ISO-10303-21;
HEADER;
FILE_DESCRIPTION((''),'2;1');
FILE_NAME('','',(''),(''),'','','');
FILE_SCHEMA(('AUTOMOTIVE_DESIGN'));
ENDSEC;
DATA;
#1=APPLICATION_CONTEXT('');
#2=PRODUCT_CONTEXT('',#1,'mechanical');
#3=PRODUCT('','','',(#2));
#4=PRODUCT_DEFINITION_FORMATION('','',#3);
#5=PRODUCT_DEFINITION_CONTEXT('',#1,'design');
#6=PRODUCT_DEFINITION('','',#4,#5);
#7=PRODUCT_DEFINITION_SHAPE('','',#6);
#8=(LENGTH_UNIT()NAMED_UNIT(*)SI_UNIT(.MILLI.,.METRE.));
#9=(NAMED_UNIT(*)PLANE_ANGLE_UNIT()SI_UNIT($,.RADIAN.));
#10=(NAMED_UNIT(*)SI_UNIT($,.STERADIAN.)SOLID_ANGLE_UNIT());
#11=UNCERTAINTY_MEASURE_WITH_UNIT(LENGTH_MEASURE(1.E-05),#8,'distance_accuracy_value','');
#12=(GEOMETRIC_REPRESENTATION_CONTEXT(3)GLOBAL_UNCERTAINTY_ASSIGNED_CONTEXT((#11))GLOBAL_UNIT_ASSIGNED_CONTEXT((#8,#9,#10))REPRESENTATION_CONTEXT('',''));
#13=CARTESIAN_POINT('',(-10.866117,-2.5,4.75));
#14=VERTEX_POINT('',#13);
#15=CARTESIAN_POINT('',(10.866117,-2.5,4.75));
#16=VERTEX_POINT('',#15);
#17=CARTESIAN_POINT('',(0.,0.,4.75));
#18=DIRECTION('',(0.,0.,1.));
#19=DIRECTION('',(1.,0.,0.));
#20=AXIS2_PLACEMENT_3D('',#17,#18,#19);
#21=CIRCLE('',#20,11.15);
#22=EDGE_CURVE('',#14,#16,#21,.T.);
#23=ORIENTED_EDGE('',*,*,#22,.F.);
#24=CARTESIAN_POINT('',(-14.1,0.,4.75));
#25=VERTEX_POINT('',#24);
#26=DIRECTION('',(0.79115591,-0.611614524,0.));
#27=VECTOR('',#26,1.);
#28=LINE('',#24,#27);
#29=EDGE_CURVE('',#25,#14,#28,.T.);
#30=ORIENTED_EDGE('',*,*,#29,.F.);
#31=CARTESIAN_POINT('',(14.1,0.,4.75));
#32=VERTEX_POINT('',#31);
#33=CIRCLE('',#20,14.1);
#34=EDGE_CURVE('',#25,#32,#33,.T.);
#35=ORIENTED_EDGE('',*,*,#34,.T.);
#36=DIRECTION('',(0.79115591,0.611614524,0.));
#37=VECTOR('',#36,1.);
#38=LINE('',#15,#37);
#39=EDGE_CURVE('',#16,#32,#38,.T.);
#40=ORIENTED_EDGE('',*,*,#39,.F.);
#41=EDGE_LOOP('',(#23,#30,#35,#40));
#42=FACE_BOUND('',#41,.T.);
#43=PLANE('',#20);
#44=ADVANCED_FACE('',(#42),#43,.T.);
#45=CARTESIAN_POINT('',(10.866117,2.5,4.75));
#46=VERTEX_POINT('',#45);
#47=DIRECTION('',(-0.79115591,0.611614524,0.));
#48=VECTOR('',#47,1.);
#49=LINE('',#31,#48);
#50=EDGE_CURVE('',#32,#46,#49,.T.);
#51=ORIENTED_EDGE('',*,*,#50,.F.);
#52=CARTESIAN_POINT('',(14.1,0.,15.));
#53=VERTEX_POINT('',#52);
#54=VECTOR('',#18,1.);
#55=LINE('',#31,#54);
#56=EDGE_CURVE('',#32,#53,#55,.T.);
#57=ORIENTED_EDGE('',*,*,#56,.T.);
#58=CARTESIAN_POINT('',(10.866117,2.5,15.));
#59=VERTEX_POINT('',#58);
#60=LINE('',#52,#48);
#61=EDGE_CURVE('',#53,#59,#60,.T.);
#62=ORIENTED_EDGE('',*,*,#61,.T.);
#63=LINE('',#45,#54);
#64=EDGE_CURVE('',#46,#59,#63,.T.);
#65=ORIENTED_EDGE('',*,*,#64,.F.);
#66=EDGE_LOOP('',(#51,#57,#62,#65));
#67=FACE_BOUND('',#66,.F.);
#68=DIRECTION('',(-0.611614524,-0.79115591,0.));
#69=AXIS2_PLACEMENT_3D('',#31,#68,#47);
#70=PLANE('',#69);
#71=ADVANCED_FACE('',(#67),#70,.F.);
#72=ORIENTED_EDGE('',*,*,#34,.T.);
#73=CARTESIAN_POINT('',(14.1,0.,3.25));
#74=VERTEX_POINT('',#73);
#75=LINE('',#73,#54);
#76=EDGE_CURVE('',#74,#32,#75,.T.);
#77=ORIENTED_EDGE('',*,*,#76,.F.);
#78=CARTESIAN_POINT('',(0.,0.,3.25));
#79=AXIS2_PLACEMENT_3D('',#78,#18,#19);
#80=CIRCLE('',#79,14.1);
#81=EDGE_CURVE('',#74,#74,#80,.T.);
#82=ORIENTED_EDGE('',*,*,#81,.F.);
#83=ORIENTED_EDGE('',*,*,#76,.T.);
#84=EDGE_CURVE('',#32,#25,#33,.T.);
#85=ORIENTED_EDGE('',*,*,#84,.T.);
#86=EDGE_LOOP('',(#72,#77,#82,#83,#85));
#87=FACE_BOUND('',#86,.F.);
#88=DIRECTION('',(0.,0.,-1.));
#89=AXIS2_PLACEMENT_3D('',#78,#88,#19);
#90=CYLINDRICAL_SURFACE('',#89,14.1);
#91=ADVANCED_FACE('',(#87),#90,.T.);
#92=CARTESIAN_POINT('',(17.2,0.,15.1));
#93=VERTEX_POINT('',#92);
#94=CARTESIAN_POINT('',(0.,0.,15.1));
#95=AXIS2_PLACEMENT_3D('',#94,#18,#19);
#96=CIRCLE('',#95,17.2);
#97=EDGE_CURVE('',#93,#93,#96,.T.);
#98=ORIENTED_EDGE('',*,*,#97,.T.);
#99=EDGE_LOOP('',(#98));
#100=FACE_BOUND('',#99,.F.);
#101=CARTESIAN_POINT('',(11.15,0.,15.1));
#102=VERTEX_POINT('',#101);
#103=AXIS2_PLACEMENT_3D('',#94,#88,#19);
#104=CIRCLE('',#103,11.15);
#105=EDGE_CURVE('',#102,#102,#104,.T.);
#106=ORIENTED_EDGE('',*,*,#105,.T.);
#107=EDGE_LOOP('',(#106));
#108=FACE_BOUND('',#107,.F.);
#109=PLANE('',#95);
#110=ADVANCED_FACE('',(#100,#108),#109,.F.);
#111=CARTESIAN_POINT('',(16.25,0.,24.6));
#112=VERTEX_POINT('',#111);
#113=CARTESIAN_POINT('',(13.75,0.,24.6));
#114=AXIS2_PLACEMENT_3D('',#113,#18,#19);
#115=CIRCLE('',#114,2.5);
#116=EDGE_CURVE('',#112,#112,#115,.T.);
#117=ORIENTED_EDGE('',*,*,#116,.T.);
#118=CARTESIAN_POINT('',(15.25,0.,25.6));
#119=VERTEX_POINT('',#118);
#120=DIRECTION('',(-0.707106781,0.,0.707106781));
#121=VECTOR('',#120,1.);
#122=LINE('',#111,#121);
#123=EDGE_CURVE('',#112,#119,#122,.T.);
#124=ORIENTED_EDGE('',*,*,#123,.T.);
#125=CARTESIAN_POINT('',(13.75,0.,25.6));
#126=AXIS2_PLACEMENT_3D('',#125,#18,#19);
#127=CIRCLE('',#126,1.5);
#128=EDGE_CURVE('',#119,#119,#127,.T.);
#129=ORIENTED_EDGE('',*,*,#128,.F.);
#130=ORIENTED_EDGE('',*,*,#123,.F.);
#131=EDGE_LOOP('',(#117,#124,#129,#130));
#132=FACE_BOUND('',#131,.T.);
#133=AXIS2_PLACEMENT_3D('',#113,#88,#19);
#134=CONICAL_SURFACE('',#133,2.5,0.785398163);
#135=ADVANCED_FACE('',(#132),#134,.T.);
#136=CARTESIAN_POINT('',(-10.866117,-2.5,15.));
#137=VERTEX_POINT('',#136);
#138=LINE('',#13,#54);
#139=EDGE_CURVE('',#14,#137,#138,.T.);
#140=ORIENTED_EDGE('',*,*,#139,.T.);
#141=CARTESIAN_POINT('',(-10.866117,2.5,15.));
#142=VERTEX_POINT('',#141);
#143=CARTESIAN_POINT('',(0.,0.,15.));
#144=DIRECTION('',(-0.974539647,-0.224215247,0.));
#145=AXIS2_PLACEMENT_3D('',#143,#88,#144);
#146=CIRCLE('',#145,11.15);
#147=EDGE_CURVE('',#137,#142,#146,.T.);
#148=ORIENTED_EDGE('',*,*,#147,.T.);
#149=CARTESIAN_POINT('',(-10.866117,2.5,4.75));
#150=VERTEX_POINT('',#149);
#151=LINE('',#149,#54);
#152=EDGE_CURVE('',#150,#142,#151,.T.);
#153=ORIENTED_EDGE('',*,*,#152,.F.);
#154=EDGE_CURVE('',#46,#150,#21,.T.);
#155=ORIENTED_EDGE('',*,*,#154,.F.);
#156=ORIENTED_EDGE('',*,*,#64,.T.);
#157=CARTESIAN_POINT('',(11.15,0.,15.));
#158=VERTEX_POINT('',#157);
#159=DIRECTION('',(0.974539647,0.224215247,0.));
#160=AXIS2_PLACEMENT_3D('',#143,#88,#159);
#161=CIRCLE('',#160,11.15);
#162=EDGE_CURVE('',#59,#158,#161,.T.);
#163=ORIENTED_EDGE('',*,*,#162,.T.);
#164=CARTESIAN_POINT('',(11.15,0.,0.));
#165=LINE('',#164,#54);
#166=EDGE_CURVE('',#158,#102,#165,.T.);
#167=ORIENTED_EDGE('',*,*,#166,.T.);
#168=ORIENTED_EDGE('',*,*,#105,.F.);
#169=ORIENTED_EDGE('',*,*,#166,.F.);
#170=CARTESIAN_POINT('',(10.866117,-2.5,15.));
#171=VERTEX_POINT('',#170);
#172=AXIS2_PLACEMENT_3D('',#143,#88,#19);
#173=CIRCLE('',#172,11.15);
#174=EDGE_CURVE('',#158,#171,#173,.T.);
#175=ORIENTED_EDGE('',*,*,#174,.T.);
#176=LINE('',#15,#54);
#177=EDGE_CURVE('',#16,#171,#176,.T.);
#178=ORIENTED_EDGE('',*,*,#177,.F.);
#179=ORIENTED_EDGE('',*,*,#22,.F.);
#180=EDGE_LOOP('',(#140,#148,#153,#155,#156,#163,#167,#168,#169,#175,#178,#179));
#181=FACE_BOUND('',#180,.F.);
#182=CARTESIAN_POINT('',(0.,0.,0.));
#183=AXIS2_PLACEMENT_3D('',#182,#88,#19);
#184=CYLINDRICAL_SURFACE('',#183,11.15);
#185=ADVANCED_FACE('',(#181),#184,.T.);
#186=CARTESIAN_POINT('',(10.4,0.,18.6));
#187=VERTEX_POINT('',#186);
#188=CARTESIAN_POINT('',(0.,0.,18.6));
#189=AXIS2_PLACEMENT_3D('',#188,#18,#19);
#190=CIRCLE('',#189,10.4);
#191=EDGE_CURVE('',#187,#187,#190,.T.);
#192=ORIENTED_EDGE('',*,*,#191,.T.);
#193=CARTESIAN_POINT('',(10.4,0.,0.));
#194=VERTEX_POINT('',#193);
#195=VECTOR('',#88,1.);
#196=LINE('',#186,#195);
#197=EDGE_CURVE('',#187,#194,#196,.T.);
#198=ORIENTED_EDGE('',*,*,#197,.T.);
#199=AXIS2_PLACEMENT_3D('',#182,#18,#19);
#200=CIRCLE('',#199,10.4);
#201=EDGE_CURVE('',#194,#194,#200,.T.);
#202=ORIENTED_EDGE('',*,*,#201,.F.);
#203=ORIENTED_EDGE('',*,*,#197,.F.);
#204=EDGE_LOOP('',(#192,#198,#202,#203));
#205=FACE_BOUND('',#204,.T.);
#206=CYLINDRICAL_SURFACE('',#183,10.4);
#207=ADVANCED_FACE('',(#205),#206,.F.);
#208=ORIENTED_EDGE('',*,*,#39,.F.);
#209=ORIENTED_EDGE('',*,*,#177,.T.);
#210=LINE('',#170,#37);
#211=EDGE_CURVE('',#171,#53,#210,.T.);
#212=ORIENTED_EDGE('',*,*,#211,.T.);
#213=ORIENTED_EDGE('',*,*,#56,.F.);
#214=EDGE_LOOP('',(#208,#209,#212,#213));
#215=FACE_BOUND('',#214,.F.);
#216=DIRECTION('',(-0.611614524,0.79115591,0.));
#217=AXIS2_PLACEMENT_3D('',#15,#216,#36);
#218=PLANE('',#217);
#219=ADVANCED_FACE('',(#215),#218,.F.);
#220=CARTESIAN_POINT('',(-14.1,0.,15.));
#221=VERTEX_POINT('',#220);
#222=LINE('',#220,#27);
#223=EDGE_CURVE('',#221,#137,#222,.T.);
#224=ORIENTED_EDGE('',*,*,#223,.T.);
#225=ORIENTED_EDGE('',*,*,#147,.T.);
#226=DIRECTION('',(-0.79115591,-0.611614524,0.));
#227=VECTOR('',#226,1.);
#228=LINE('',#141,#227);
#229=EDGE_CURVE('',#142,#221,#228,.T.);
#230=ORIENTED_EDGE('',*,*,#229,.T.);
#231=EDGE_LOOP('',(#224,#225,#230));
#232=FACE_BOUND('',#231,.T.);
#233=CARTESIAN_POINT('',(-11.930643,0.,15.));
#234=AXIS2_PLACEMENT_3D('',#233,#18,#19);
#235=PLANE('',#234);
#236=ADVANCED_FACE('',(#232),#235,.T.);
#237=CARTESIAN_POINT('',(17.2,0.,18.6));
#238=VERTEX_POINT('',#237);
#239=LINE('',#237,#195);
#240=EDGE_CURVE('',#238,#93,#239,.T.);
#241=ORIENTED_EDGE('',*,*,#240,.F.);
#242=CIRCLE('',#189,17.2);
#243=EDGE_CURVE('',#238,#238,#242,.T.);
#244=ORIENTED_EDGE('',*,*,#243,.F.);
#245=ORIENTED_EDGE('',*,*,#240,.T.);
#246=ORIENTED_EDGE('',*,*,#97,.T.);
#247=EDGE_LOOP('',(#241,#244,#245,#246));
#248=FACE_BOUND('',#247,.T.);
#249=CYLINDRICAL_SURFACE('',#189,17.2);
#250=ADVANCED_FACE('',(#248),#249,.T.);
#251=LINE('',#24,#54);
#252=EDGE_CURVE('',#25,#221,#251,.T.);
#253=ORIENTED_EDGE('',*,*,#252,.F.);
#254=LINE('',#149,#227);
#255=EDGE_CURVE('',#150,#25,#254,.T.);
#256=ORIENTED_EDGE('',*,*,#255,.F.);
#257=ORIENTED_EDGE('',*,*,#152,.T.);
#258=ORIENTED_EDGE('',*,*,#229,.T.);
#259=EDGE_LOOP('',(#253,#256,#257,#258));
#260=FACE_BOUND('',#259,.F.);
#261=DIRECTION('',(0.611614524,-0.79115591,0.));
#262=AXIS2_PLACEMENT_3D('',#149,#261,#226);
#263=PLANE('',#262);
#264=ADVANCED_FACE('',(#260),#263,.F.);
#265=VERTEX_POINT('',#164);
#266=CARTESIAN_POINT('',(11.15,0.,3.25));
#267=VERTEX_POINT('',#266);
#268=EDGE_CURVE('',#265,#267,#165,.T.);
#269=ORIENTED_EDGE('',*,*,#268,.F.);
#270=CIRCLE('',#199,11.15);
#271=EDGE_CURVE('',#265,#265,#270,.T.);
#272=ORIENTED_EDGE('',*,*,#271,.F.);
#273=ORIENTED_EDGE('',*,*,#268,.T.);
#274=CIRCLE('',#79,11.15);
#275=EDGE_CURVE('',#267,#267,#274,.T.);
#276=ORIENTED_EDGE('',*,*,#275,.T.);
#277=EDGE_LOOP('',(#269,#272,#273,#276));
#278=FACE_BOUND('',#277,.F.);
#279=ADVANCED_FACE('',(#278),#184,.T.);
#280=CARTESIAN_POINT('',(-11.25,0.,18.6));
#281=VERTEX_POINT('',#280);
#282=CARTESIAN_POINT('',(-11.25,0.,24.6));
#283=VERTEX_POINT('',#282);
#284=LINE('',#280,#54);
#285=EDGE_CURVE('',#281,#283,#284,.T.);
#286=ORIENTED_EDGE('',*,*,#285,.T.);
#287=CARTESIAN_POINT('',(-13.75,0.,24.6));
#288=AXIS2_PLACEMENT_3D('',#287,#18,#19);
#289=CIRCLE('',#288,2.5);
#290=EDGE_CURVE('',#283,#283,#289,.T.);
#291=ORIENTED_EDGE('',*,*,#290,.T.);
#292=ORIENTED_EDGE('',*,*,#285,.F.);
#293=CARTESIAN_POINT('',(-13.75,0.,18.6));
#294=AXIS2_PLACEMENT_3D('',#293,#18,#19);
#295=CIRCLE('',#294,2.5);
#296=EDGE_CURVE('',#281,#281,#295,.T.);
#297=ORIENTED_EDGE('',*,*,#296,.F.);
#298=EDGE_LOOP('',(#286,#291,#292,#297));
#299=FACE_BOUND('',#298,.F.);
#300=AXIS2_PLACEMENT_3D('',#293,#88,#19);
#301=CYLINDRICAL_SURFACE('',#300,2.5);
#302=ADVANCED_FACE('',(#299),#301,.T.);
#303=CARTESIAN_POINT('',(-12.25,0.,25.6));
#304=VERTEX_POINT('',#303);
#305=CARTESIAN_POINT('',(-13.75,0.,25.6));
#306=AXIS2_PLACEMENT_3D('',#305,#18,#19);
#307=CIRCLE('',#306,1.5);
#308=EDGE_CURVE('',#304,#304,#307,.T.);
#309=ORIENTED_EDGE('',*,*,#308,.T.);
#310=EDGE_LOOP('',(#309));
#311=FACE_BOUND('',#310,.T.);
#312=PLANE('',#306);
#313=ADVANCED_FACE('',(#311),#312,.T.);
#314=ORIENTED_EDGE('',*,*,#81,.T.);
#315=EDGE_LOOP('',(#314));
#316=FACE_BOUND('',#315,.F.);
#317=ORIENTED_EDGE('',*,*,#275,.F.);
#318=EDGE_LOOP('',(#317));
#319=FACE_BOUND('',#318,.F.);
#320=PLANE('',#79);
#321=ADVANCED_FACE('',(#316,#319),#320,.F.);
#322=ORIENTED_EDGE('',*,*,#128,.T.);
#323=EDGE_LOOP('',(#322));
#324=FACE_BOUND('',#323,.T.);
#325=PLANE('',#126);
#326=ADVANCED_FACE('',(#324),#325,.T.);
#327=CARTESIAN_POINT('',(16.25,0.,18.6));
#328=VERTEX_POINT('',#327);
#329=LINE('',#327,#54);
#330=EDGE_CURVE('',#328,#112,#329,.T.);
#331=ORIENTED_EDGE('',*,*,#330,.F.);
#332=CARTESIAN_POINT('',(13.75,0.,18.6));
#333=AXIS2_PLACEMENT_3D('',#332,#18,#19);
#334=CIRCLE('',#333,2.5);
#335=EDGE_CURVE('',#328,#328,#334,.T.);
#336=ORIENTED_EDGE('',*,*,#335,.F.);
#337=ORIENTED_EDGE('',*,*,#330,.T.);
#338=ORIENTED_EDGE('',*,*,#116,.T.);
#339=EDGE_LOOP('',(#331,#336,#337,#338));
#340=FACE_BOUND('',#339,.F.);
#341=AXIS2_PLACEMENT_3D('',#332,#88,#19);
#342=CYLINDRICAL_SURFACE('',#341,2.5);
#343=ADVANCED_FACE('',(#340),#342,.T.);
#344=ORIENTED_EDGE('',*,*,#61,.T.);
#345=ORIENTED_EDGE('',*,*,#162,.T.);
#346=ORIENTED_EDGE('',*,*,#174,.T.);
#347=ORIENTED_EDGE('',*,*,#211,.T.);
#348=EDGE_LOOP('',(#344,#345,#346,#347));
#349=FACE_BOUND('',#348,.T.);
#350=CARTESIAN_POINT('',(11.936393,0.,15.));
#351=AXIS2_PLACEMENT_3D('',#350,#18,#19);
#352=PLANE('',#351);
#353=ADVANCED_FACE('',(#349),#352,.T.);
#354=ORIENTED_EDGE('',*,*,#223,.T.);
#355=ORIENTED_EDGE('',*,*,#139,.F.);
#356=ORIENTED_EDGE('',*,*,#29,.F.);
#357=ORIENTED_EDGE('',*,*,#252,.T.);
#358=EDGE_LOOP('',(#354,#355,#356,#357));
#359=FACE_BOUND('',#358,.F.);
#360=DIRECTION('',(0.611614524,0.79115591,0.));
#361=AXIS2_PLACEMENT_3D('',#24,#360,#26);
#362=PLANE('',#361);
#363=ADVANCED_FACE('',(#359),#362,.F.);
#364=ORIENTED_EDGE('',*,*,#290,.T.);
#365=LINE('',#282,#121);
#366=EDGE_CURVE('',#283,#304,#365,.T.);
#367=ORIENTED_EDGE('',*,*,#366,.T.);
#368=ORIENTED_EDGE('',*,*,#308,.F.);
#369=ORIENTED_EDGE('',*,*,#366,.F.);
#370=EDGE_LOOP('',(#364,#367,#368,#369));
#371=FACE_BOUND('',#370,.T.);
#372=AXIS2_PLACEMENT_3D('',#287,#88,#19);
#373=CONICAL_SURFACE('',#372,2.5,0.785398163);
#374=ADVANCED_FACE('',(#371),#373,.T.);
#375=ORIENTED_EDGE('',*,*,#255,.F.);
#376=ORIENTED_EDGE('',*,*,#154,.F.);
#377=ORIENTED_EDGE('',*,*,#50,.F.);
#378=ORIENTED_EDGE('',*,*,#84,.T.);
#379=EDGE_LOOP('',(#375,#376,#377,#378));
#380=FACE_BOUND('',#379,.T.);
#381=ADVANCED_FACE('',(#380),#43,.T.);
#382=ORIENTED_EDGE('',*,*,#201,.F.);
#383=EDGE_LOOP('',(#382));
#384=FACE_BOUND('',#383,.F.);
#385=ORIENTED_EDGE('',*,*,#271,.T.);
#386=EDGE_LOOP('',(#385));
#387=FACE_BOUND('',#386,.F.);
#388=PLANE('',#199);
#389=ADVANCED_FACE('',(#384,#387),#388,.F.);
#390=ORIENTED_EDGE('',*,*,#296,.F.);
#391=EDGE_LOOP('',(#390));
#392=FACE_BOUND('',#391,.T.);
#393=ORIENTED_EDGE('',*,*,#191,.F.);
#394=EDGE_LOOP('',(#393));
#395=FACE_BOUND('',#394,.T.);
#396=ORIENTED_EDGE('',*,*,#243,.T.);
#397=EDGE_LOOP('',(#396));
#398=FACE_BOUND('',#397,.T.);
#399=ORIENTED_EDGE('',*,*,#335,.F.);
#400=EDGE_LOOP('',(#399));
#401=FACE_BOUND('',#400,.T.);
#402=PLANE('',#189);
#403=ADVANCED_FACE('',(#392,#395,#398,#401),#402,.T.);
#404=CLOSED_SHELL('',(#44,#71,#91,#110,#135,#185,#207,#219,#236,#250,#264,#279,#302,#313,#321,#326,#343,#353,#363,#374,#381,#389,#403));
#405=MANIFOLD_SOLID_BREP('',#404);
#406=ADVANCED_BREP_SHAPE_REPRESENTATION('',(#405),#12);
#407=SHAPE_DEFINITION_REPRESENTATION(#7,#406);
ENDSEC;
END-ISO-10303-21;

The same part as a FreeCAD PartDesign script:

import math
import FreeCAD as App
import Part
import Sketcher
Q = App.Units.Quantity


def edges_at(feature, points):
    """Names of the edges that pass closest to the given points."""
    edges = feature.Shape.Edges
    near = lambda p: min(range(len(edges)), key=lambda i: edges[i].distToShape(Part.Vertex(*p))[0])
    return sorted({f"Edge{near(p) + 1}" for p in points})

doc = App.newDocument("Part")
params = doc.addObject("Spreadsheet::Sheet", "Params")
for row, (alias, value) in enumerate([
    ("sketch1_diameter", "22.3 mm"),
    ("sketch1_diameter2", "20.8 mm"),
    ("pad1_length", "18.6 mm"),
    ("sketch2_diameter", "28.2 mm"),
    ("sketch2_diameter2", "22.3 mm"),
    ("pad2_length", "1.5 mm"),
    ("sketch3_diameter", "34.4 mm"),
    ("sketch3_diameter2", "20.8 mm"),
    ("pad3_length", "3.5 mm"),
    ("sketch4_diameter", "5 mm"),
    ("pad4_length", "7 mm"),
    ("chamfer_size", "1 mm"),
    ("sketch5_radius", "11.15 mm"),
    ("pad5_length", "10.25 mm"),
], start=1):
    params.set(f"A{row}", alias)
    params.set(f"B{row}", "=" + value)
    params.setAlias(f"B{row}", alias)

body = doc.addObject("PartDesign::Body", "Body")

sketch1 = doc.addObject("Sketcher::SketchObject", "Sketch")
body.addObject(sketch1)
sketch1.AttachmentSupport = (doc.XY_Plane, [""])
sketch1.MapMode = "FlatFace"
sketch1.addGeometry(Part.Circle(App.Vector(0, 0, 0), App.Vector(0, 0, 1), 11.15), False)
sketch1.addGeometry(Part.Circle(App.Vector(0, 0, 0), App.Vector(0, 0, 1), 10.4), False)
sketch1.addConstraint(Sketcher.Constraint("Coincident", 0, 3, -1, 1))
sketch1.addConstraint(Sketcher.Constraint("Coincident", 1, 3, -1, 1))
sketch1.addConstraint(Sketcher.Constraint("Diameter", 0, Q("22.3 mm")))
sketch1.addConstraint(Sketcher.Constraint("Diameter", 1, Q("20.8 mm")))
sketch1.setExpression("Constraints[2]", "Params.sketch1_diameter")
sketch1.setExpression("Constraints[3]", "Params.sketch1_diameter2")
pad1 = doc.addObject("PartDesign::Pad", "Pad")
body.addObject(pad1)
pad1.Profile = sketch1
pad1.setExpression("Length", "Params.pad1_length")

sketch2 = doc.addObject("Sketcher::SketchObject", "Sketch001")
body.addObject(sketch2)
sketch2.AttachmentSupport = (doc.XY_Plane, [""])
sketch2.MapMode = "FlatFace"
sketch2.AttachmentOffset = App.Placement(App.Vector(0, 0, 3.25), App.Rotation())
sketch2.addGeometry(Part.Circle(App.Vector(0, 0, 0), App.Vector(0, 0, 1), 14.1), False)
sketch2.addGeometry(Part.Circle(App.Vector(0, 0, 0), App.Vector(0, 0, 1), 11.15), False)
sketch2.addConstraint(Sketcher.Constraint("Coincident", 0, 3, -1, 1))
sketch2.addConstraint(Sketcher.Constraint("Coincident", 1, 3, -1, 1))
sketch2.addConstraint(Sketcher.Constraint("Diameter", 0, Q("28.2 mm")))
sketch2.addConstraint(Sketcher.Constraint("Diameter", 1, Q("22.3 mm")))
sketch2.setExpression("Constraints[2]", "Params.sketch2_diameter")
sketch2.setExpression("Constraints[3]", "Params.sketch2_diameter2")
pad2 = doc.addObject("PartDesign::Pad", "Pad001")
body.addObject(pad2)
pad2.Profile = sketch2
pad2.setExpression("Length", "Params.pad2_length")

sketch3 = doc.addObject("Sketcher::SketchObject", "Sketch002")
body.addObject(sketch3)
sketch3.AttachmentSupport = (doc.XY_Plane, [""])
sketch3.MapMode = "FlatFace"
sketch3.AttachmentOffset = App.Placement(App.Vector(0, 0, 18.6), App.Rotation())
sketch3.addGeometry(Part.Circle(App.Vector(0, 0, 0), App.Vector(0, 0, 1), 17.2), False)
sketch3.addGeometry(Part.Circle(App.Vector(0, 0, 0), App.Vector(0, 0, 1), 10.4), False)
sketch3.addConstraint(Sketcher.Constraint("Coincident", 0, 3, -1, 1))
sketch3.addConstraint(Sketcher.Constraint("Coincident", 1, 3, -1, 1))
sketch3.addConstraint(Sketcher.Constraint("Diameter", 0, Q("34.4 mm")))
sketch3.addConstraint(Sketcher.Constraint("Diameter", 1, Q("20.8 mm")))
sketch3.setExpression("Constraints[2]", "Params.sketch3_diameter")
sketch3.setExpression("Constraints[3]", "Params.sketch3_diameter2")
pad3 = doc.addObject("PartDesign::Pad", "Pad002")
body.addObject(pad3)
pad3.Profile = sketch3
pad3.setExpression("Length", "Params.pad3_length")
pad3.Reversed = True

sketch4 = doc.addObject("Sketcher::SketchObject", "Sketch003")
body.addObject(sketch4)
sketch4.AttachmentSupport = (doc.XY_Plane, [""])
sketch4.MapMode = "FlatFace"
sketch4.AttachmentOffset = App.Placement(App.Vector(0, 0, 18.6), App.Rotation())
sketch4.addGeometry(Part.Circle(App.Vector(13.75, 0, 0), App.Vector(0, 0, 1), 2.5), False)
sketch4.addGeometry(Part.Circle(App.Vector(-13.75, 0, 0), App.Vector(0, 0, 1), 2.5), False)
sketch4.addConstraint(Sketcher.Constraint("Equal", 0, 1))
sketch4.addConstraint(Sketcher.Constraint("Symmetric", 0, 3, 1, 3, -1, 1))
sketch4.addConstraint(Sketcher.Constraint("PointOnObject", 0, 3, -1))
sketch4.addConstraint(Sketcher.Constraint("Diameter", 0, Q("5 mm")))
sketch4.addConstraint(Sketcher.Constraint("DistanceX", 1, 3, 0, 3, Q("27.5 mm")))
sketch4.setExpression("Constraints[3]", "Params.sketch4_diameter")
pad4 = doc.addObject("PartDesign::Pad", "Pad003")
body.addObject(pad4)
pad4.Profile = sketch4
pad4.setExpression("Length", "Params.pad4_length")
doc.recompute()

chamfer = doc.addObject("PartDesign::Chamfer", "Chamfer")
body.addObject(chamfer)
chamfer.Base = (pad4, edges_at(pad4, [(-16.25, 0, 25.6), (11.25, 0, 25.6)]))
chamfer.setExpression("Size", "Params.chamfer_size")

sketch5 = doc.addObject("Sketcher::SketchObject", "Sketch004")
body.addObject(sketch5)
sketch5.AttachmentSupport = (doc.XY_Plane, [""])
sketch5.MapMode = "FlatFace"
sketch5.AttachmentOffset = App.Placement(App.Vector(0, 0, 4.75), App.Rotation())
sketch5.addGeometry(Part.LineSegment(App.Vector(10.866117, -2.5, 0), App.Vector(14.1, 0, 0)), False)
sketch5.addGeometry(Part.LineSegment(App.Vector(14.1, 0, 0), App.Vector(10.866117, 2.5, 0)), False)
sketch5.addGeometry(Part.ArcOfCircle(Part.Circle(App.Vector(0, 0, 0), App.Vector(0, 0, 1), 11.15), math.radians(0), math.radians(12.956736)), False)
sketch5.addGeometry(Part.ArcOfCircle(Part.Circle(App.Vector(0, 0, 0), App.Vector(0, 0, 1), 11.15), math.radians(-12.956736), math.radians(0)), False)
sketch5.addGeometry(Part.LineSegment(App.Vector(-10.866117, 2.5, 0), App.Vector(-14.1, 0, 0)), False)
sketch5.addGeometry(Part.LineSegment(App.Vector(-14.1, 0, 0), App.Vector(-10.866117, -2.5, 0)), False)
sketch5.addGeometry(Part.ArcOfCircle(Part.Circle(App.Vector(0, 0, 0), App.Vector(0, 0, 1), 11.15), math.radians(167.043264), math.radians(192.956736)), False)
sketch5.addConstraint(Sketcher.Constraint("Coincident", 0, 2, 1, 1))
sketch5.addConstraint(Sketcher.Constraint("Coincident", 1, 2, 2, 2))
sketch5.addConstraint(Sketcher.Constraint("Tangent", 2, 1, 3, 2))
sketch5.addConstraint(Sketcher.Constraint("Coincident", 3, 1, 0, 1))
sketch5.addConstraint(Sketcher.Constraint("Coincident", 4, 2, 5, 1))
sketch5.addConstraint(Sketcher.Constraint("Coincident", 5, 2, 6, 2))
sketch5.addConstraint(Sketcher.Constraint("Coincident", 6, 1, 4, 1))
sketch5.addConstraint(Sketcher.Constraint("Coincident", 2, 3, -1, 1))
sketch5.addConstraint(Sketcher.Constraint("Coincident", 6, 3, -1, 1))
sketch5.addConstraint(Sketcher.Constraint("Equal", 2, 3))
sketch5.addConstraint(Sketcher.Constraint("Equal", 3, 6))
sketch5.addConstraint(Sketcher.Constraint("Symmetric", 0, 2, 4, 2, -1, 1))
sketch5.addConstraint(Sketcher.Constraint("PointOnObject", 0, 2, -1))
sketch5.addConstraint(Sketcher.Constraint("PointOnObject", 2, 1, -1))
sketch5.addConstraint(Sketcher.Constraint("Parallel", 0, 4))
sketch5.addConstraint(Sketcher.Constraint("Parallel", 1, 5))
sketch5.addConstraint(Sketcher.Constraint("Horizontal", 3, 1, 5, 2))
sketch5.addConstraint(Sketcher.Constraint("Radius", 2, Q("11.15 mm")))
sketch5.addConstraint(Sketcher.Constraint("DistanceY", 3, 1, 1, 2, Q("5 mm")))
sketch5.addConstraint(Sketcher.Constraint("DistanceX", -1, 1, 0, 2, Q("14.1 mm")))
sketch5.setExpression("Constraints[17]", "Params.sketch5_radius")
pad5 = doc.addObject("PartDesign::Pad", "Pad004")
body.addObject(pad5)
pad5.Profile = sketch5
pad5.setExpression("Length", "Params.pad5_length")

doc.recompute()
